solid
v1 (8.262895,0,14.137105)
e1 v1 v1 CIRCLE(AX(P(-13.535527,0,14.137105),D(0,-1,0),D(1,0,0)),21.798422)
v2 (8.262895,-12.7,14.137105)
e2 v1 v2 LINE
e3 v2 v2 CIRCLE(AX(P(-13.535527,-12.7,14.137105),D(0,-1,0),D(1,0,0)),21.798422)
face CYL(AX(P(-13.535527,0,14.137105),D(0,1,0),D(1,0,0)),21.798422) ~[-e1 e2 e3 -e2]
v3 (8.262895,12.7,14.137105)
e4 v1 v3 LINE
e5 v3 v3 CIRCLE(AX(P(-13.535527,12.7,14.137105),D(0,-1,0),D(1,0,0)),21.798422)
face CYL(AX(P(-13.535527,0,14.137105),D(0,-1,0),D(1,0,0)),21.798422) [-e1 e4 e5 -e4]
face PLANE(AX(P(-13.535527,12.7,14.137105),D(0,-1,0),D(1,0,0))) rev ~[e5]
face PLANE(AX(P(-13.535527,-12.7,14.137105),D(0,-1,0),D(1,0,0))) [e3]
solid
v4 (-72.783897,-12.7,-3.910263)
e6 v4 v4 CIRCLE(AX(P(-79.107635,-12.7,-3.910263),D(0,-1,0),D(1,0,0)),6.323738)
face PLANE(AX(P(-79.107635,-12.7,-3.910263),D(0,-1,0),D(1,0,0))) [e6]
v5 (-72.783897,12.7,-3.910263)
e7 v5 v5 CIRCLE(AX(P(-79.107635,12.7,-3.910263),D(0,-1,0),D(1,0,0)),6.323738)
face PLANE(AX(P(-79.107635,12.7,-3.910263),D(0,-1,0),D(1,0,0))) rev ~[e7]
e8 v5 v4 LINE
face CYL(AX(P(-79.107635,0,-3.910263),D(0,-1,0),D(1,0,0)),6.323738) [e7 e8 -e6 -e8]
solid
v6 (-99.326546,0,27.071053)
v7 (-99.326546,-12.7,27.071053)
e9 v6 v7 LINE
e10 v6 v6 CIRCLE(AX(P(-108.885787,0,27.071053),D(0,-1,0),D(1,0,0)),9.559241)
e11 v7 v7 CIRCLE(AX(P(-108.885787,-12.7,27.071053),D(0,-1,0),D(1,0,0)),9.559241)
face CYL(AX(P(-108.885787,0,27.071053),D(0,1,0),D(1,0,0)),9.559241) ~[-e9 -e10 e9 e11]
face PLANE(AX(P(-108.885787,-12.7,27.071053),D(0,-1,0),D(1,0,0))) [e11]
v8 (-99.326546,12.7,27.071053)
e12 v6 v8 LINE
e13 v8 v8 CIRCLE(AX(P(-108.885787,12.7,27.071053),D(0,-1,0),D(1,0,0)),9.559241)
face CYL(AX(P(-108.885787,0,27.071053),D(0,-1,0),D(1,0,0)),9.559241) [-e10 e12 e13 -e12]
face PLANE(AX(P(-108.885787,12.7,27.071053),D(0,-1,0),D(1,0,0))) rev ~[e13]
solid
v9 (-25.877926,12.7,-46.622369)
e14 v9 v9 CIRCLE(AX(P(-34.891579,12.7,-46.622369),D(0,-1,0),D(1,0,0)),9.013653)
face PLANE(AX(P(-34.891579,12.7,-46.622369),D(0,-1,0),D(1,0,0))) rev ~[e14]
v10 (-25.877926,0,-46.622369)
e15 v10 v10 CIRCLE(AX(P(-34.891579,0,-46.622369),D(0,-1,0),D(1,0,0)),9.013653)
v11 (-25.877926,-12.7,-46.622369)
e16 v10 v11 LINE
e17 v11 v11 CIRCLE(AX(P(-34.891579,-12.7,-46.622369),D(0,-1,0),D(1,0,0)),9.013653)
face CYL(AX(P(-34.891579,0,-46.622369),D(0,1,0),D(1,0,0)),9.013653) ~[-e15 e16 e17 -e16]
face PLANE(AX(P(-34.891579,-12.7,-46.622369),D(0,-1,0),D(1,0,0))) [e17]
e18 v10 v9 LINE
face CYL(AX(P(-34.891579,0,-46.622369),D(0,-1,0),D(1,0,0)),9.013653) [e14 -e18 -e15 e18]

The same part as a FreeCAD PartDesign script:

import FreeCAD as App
import Part
import Sketcher

V = App.Vector
Q = App.Units.Quantity

doc = App.newDocument("Part")
body = doc.addObject("PartDesign::Body", "Body")
body.AllowCompound = True

# Sketch on XZ plane
sketch1 = doc.addObject("Sketcher::SketchObject", "Sketch")
body.addObject(sketch1)
sketch1.AttachmentSupport = (doc.XZ_Plane, [""])
sketch1.MapMode = "FlatFace"
sketch1.addGeometry([
    Part.Circle(V(-109, 27, 0), V(0, 0, 1), 10),
    Part.Circle(V(-14, 14, 0), V(0, 0, 1), 22),
    Part.Circle(V(-35, -47, 0), V(0, 0, 1), 9),
    Part.Circle(V(-79, -4, 0), V(0, 0, 1), 6),
], False)
sketch1.addConstraint([
    Sketcher.Constraint("Diameter", 0, Q("19.118482 mm")),
    Sketcher.Constraint("Diameter", 1, Q("43.596844 mm")),
    Sketcher.Constraint("Diameter", 2, Q("18.027306 mm")),
    Sketcher.Constraint("Diameter", 3, Q("12.647476 mm")),
    Sketcher.Constraint("DistanceX", 2, 3, -1, 1, Q("34.891579 mm")),
    Sketcher.Constraint("DistanceY", 2, 3, -1, 1, Q("46.622369 mm")),
    Sketcher.Constraint("DistanceX", 0, 3, 1, 3, Q("95.35026 mm")),
    Sketcher.Constraint("DistanceX", 2, 3, 1, 3, Q("21.356052 mm")),
    Sketcher.Constraint("DistanceY", 2, 3, 0, 3, Q("73.693422 mm")),
    Sketcher.Constraint("DistanceX", 0, 3, 3, 3, Q("29.778152 mm")),
    Sketcher.Constraint("DistanceY", -1, 1, 1, 3, Q("14.137105 mm")),
    Sketcher.Constraint("DistanceY", 3, 3, -1, 1, Q("3.910263 mm")),
])
pad1 = doc.addObject("PartDesign::Pad", "Pad")
body.addObject(pad1)
pad1.Profile = sketch1
pad1.Length = Q("1 in")
pad1.Midplane = True

doc.recompute()
